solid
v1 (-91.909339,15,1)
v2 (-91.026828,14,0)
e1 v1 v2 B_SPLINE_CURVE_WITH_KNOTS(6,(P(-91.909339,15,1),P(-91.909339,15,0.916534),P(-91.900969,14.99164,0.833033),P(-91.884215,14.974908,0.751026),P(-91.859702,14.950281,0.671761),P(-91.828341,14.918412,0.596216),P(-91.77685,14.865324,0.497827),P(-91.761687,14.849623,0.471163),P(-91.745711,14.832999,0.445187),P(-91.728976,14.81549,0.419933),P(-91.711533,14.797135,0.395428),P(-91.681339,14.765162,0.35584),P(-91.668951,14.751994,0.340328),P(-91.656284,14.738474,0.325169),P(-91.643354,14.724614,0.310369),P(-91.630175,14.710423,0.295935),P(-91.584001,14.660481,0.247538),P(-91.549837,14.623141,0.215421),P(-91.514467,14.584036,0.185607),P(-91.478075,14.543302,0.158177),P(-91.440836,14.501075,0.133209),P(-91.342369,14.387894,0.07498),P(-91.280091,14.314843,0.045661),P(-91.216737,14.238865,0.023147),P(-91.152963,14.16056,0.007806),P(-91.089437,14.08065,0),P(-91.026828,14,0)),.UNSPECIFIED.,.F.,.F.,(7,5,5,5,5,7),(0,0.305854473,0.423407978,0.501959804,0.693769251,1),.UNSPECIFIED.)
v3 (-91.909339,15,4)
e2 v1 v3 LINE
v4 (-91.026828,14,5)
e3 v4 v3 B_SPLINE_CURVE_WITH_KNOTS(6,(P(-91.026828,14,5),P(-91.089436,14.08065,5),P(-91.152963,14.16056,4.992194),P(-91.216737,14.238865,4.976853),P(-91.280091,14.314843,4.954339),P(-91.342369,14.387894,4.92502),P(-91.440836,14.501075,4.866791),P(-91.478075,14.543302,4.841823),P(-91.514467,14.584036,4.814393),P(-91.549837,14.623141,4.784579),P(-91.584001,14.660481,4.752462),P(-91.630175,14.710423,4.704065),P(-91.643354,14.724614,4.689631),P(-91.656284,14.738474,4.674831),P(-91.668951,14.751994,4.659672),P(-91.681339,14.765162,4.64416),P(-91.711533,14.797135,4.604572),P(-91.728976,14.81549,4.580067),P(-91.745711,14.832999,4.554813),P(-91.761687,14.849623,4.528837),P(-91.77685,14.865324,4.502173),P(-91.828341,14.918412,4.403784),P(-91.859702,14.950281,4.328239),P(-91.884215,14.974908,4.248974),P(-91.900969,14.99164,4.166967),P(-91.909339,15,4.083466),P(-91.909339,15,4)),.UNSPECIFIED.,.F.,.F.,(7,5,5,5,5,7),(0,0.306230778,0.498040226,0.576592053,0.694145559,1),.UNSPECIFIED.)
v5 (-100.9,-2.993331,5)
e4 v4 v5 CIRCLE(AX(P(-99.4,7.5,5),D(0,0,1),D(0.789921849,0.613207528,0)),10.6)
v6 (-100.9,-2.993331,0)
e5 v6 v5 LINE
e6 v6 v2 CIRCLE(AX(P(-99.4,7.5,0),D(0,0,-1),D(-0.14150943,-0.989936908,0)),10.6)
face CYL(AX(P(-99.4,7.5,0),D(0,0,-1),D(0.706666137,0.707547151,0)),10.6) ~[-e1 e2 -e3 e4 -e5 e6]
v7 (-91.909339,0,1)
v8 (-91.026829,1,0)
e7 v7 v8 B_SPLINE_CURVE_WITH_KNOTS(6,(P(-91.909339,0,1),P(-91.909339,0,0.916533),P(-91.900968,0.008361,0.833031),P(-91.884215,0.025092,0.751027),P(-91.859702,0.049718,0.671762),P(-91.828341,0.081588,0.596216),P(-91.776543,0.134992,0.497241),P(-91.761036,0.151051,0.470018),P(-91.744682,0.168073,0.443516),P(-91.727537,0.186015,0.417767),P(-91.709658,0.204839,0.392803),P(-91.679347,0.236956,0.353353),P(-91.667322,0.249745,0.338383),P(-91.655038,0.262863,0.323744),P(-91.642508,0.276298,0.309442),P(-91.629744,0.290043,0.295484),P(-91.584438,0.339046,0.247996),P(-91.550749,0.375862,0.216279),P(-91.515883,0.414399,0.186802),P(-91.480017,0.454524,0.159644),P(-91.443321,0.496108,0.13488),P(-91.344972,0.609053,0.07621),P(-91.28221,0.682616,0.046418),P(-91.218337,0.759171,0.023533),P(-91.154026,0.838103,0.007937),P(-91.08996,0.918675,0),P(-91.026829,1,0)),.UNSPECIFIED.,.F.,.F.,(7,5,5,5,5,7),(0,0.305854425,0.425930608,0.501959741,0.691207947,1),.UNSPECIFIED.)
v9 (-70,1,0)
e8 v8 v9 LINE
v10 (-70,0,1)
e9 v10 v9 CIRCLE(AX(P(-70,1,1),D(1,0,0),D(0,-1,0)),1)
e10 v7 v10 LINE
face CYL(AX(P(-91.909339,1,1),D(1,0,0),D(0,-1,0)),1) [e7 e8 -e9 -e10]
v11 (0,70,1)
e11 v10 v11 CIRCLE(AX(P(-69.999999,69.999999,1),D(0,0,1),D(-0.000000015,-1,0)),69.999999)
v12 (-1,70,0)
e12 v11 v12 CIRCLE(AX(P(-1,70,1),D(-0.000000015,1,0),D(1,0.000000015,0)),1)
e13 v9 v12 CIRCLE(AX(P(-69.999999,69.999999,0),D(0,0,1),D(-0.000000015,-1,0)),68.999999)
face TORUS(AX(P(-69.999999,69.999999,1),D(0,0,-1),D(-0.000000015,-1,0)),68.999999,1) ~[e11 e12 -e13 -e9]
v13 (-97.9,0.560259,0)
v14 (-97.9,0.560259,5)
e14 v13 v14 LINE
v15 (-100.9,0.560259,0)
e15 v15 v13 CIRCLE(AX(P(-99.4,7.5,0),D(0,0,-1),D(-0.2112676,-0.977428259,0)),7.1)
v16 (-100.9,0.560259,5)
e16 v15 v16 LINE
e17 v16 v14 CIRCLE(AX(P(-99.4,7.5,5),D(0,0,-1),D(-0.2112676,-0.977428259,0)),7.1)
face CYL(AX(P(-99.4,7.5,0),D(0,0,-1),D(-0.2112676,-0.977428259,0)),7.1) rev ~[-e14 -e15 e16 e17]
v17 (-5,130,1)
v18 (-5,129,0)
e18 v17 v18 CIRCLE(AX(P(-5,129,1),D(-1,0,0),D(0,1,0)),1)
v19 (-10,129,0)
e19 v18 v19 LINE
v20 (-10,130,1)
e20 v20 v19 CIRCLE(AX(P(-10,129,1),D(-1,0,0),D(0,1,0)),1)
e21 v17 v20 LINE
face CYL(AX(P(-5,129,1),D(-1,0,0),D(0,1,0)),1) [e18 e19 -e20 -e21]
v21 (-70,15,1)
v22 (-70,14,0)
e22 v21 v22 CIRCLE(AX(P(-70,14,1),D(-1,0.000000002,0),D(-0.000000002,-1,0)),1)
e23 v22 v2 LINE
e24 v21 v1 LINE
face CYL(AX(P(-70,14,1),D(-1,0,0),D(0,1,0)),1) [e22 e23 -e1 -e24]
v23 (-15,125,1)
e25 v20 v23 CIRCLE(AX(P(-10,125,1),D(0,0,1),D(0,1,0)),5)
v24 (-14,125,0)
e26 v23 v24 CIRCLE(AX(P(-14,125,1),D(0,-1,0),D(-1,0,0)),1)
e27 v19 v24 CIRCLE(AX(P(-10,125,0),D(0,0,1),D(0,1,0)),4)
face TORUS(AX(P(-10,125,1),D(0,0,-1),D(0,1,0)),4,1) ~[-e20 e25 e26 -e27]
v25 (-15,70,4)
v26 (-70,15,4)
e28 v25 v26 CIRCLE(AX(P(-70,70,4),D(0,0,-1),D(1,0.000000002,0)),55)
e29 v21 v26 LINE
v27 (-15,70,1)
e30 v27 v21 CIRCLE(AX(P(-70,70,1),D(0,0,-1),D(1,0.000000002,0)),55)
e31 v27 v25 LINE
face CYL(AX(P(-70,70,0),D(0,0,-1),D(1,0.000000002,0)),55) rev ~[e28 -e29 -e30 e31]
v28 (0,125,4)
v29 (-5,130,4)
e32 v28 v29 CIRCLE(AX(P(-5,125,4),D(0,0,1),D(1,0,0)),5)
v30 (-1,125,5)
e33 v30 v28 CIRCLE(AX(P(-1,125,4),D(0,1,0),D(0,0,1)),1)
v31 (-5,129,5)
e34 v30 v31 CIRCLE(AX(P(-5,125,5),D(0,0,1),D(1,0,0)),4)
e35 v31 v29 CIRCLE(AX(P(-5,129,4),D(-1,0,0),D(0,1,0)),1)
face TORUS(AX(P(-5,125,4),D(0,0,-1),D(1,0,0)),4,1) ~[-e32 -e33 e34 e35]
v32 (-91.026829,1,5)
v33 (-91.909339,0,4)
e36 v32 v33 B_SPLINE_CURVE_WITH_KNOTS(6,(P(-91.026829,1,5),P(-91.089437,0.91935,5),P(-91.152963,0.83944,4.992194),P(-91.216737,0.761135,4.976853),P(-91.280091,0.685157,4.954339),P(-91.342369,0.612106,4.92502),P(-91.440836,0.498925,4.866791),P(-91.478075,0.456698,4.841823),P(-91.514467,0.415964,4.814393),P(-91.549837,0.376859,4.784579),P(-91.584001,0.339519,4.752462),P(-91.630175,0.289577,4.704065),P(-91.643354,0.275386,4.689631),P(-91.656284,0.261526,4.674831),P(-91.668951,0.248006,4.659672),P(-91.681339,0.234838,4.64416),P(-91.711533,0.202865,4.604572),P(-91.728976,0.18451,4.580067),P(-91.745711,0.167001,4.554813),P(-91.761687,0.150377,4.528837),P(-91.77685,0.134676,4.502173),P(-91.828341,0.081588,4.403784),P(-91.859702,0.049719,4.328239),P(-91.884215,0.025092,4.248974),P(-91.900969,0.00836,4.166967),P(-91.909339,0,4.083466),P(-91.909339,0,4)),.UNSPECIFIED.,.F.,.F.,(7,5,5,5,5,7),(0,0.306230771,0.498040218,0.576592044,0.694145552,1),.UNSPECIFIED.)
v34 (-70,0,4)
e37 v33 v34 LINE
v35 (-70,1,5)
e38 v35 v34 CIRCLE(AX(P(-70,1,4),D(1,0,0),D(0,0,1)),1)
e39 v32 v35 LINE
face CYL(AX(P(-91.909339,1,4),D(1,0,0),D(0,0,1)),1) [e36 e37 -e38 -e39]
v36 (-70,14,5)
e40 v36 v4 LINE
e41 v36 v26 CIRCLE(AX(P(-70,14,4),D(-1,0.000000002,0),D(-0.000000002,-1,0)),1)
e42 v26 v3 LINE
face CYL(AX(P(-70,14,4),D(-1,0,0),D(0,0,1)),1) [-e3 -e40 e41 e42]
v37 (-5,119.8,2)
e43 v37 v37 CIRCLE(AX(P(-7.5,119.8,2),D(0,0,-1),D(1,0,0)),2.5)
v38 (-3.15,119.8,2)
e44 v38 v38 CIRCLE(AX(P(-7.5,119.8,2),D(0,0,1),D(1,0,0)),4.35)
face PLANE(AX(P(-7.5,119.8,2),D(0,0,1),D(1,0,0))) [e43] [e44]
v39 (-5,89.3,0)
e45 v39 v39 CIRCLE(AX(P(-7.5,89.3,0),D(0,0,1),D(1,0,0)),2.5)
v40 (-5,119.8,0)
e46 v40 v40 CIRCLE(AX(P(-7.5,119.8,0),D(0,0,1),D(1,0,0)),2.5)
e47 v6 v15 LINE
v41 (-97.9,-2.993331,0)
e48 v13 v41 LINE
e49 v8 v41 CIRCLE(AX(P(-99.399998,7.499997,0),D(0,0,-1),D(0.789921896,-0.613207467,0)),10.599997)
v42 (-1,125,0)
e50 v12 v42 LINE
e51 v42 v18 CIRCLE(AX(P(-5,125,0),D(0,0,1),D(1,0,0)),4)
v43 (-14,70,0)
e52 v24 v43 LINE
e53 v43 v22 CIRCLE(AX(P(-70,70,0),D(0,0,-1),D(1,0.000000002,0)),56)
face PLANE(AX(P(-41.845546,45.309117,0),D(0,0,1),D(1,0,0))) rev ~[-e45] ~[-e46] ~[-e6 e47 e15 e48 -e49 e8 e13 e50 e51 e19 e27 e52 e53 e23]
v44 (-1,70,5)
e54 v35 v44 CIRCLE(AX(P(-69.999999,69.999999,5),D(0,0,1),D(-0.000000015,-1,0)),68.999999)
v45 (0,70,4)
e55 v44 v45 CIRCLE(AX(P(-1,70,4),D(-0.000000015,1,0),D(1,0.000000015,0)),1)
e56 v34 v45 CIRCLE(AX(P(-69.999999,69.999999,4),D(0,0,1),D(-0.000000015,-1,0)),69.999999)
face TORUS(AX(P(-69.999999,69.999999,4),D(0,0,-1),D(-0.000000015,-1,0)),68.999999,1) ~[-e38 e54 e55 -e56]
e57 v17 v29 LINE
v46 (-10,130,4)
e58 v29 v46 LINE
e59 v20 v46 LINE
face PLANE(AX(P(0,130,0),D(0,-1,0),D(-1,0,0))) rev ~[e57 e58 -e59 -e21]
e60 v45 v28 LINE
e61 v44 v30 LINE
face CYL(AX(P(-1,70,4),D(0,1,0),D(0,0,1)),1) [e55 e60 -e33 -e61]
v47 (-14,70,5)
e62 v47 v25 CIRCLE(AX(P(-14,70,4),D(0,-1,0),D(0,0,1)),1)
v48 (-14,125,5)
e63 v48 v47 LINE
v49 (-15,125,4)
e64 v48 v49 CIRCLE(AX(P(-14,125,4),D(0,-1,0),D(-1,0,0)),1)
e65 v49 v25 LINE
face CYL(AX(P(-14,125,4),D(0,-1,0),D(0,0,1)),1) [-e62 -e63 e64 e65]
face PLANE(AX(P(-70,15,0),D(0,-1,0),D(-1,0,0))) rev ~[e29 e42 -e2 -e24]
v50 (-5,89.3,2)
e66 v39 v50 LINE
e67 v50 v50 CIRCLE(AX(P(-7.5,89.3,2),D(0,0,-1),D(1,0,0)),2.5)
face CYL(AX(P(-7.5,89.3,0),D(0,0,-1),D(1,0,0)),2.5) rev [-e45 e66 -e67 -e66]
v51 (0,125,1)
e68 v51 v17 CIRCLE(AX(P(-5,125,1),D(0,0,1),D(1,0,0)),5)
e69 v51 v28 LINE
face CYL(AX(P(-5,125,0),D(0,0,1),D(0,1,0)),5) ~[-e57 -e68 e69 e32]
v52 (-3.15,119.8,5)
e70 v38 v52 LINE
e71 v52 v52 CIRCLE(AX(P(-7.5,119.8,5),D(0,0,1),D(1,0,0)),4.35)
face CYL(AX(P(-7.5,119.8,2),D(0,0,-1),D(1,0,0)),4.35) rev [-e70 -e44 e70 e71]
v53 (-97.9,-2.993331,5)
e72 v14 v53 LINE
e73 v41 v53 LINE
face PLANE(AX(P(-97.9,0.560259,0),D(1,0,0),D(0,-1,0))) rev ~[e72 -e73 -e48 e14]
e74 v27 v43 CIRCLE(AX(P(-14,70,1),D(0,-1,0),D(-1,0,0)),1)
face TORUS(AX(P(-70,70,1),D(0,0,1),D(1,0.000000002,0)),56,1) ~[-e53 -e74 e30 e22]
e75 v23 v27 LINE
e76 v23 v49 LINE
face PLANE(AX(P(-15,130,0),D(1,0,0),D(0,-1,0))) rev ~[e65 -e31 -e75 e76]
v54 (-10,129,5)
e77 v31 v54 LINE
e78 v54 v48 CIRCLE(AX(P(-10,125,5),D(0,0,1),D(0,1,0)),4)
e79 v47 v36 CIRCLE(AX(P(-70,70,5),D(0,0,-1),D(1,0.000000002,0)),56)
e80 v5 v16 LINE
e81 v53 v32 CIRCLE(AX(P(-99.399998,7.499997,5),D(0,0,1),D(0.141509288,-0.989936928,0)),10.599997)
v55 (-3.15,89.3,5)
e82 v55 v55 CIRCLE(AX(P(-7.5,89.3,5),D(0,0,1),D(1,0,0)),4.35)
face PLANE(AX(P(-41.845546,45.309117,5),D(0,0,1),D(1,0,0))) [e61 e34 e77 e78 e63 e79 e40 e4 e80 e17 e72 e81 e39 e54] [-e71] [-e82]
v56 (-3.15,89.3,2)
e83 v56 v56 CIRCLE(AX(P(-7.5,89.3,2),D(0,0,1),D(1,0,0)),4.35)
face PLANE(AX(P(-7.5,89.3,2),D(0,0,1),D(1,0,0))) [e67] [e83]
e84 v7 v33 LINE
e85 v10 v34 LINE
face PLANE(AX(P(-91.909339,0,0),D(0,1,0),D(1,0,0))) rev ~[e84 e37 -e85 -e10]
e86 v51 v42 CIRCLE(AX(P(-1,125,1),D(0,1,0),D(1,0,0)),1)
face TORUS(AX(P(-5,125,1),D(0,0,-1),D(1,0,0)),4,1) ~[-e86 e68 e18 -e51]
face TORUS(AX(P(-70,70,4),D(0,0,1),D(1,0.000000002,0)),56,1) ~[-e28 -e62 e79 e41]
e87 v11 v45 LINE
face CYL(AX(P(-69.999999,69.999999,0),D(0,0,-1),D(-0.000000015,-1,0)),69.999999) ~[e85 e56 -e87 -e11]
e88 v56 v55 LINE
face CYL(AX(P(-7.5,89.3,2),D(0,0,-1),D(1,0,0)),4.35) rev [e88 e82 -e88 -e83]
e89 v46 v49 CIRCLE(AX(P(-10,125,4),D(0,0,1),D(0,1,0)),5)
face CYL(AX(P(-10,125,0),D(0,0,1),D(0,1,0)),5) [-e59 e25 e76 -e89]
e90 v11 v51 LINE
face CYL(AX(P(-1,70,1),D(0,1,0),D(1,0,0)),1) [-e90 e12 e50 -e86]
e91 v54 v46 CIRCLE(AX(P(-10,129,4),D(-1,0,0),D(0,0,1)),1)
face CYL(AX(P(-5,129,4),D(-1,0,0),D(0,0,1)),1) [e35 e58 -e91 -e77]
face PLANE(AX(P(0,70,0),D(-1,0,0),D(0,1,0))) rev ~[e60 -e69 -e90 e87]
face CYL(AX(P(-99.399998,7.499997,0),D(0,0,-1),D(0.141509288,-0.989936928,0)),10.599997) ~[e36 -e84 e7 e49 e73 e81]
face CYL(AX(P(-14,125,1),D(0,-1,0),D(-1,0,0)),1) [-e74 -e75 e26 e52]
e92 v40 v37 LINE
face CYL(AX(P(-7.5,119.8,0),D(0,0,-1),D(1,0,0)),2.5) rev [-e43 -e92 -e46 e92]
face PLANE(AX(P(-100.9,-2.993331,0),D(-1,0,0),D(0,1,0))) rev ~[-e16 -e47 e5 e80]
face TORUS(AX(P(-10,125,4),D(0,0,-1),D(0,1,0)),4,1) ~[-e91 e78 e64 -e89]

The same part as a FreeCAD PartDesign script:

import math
import FreeCAD as App
import Part
import Sketcher
Q = App.Units.Quantity


def edges_at(feature, points):
    """Names of the edges that pass closest to the given points."""
    edges = feature.Shape.Edges
    near = lambda p: min(range(len(edges)), key=lambda i: edges[i].distToShape(Part.Vertex(*p))[0])
    return sorted({f"Edge{near(p) + 1}" for p in points})

doc = App.newDocument("Part")
body = doc.addObject("PartDesign::Body", "Body")

sketch1 = body.newObject("Sketcher::SketchObject", "Sketch")
sketch1.AttachmentSupport = (doc.getObject("XY_Plane"), [""])
sketch1.MapMode = "FlatFace"
sketch1.addGeometry(Part.LineSegment(App.Vector(0, 130, 0), App.Vector(-15, 130, 0)), False)
sketch1.addGeometry(Part.LineSegment(App.Vector(-15, 130, 0), App.Vector(-15, 70, 0)), False)
sketch1.addGeometry(Part.ArcOfCircle(Part.Circle(App.Vector(-70, 70, 0), App.Vector(0, 0, 1), 55), math.radians(-90), math.radians(0)), False)
sketch1.addGeometry(Part.LineSegment(App.Vector(-70, 15, 0), App.Vector(-91.9, 15, 0)), False)
sketch1.addGeometry(Part.ArcOfCircle(Part.Circle(App.Vector(-99.4, 7.5, 0), App.Vector(0, 0, 1), 10.6), math.radians(45), math.radians(262)), False)
sketch1.addGeometry(Part.LineSegment(App.Vector(-100.9, -3, 0), App.Vector(-100.9, 0.6, 0)), False)
sketch1.addGeometry(Part.ArcOfCircle(Part.Circle(App.Vector(-99.4, 7.5, 0), App.Vector(0, 0, 1), 7.1), math.radians(-78), math.radians(258)), False)
sketch1.addGeometry(Part.LineSegment(App.Vector(-97.9, 0.6, 0), App.Vector(-97.9, -3, 0)), False)
sketch1.addGeometry(Part.ArcOfCircle(Part.Circle(App.Vector(-99.4, 7.5, 0), App.Vector(0, 0, 1), 10.6), math.radians(-82), math.radians(-45)), False)
sketch1.addGeometry(Part.LineSegment(App.Vector(-91.9, 0, 0), App.Vector(-70, 0, 0)), False)
sketch1.addGeometry(Part.ArcOfCircle(Part.Circle(App.Vector(-70, 70, 0), App.Vector(0, 0, 1), 70), math.radians(-90), math.radians(0)), False)
sketch1.addGeometry(Part.LineSegment(App.Vector(0, 70, 0), App.Vector(0, 130, 0)), False)
sketch1.addGeometry(Part.Circle(App.Vector(-7.5, 89.3, 0), App.Vector(0, 0, 1), 2.5), False)
sketch1.addGeometry(Part.Circle(App.Vector(-7.5, 119.8, 0), App.Vector(0, 0, 1), 2.5), False)
sketch1.addConstraint(Sketcher.Constraint("Coincident", 0, 2, 1, 1))
sketch1.addConstraint(Sketcher.Constraint("Tangent", 1, 2, 2, 2))
sketch1.addConstraint(Sketcher.Constraint("Tangent", 2, 1, 3, 1))
sketch1.addConstraint(Sketcher.Constraint("Coincident", 3, 2, 4, 1))
sketch1.addConstraint(Sketcher.Constraint("Coincident", 4, 2, 5, 1))
sketch1.addConstraint(Sketcher.Constraint("Coincident", 5, 2, 6, 2))
sketch1.addConstraint(Sketcher.Constraint("Coincident", 6, 1, 7, 1))
sketch1.addConstraint(Sketcher.Constraint("Coincident", 7, 2, 8, 1))
sketch1.addConstraint(Sketcher.Constraint("Coincident", 8, 2, 9, 1))
sketch1.addConstraint(Sketcher.Constraint("Tangent", 9, 2, 10, 1))
sketch1.addConstraint(Sketcher.Constraint("Tangent", 10, 2, 11, 1))
sketch1.addConstraint(Sketcher.Constraint("Coincident", 11, 2, 0, 1))
sketch1.addConstraint(Sketcher.Constraint("Horizontal", 0))
sketch1.addConstraint(Sketcher.Constraint("Vertical", 1))
sketch1.addConstraint(Sketcher.Constraint("Horizontal", 3))
sketch1.addConstraint(Sketcher.Constraint("Vertical", 5))
sketch1.addConstraint(Sketcher.Constraint("Vertical", 7))
sketch1.addConstraint(Sketcher.Constraint("Horizontal", 9))
sketch1.addConstraint(Sketcher.Constraint("Vertical", 11))
sketch1.addConstraint(Sketcher.Constraint("Coincident", 6, 3, 4, 3))
sketch1.addConstraint(Sketcher.Constraint("Coincident", 8, 3, 4, 3))
sketch1.addConstraint(Sketcher.Constraint("Coincident", 10, 3, 2, 3))
sketch1.addConstraint(Sketcher.Constraint("Equal", 12, 13))
sketch1.addConstraint(Sketcher.Constraint("PointOnObject", 8, 2, -1))
sketch1.addConstraint(Sketcher.Constraint("PointOnObject", 10, 2, -2))
sketch1.addConstraint(Sketcher.Constraint("Horizontal", 5, 2, 6, 1))
sketch1.addConstraint(Sketcher.Constraint("Horizontal", 4, 2, 7, 2))
sketch1.addConstraint(Sketcher.Constraint("Vertical", 12, 3, 13, 3))
sketch1.addConstraint(Sketcher.Constraint("Vertical", 3, 2, 8, 2))
sketch1.addConstraint(Sketcher.Constraint("Diameter", 12, Q("5 mm")))
sketch1.addConstraint(Sketcher.Constraint("Radius", 2, Q("55 mm")))
sketch1.addConstraint(Sketcher.Constraint("Radius", 10, Q("69.999999 mm")))
sketch1.addConstraint(Sketcher.Constraint("Radius", 4, Q("10.6 mm")))
sketch1.addConstraint(Sketcher.Constraint("Radius", 6, Q("7.1 mm")))
sketch1.addConstraint(Sketcher.Constraint("DistanceY", 1, 2, 1, 1, Q("60 mm")))
sketch1.addConstraint(Sketcher.Constraint("DistanceX", 5, 2, 6, 1, Q("3 mm")))
sketch1.addConstraint(Sketcher.Constraint("DistanceX", 4, 3, -1, 1, Q("99.4 mm")))
sketch1.addConstraint(Sketcher.Constraint("DistanceX", 12, 3, -1, 1, Q("7.5 mm")))
sketch1.addConstraint(Sketcher.Constraint("DistanceY", -1, 1, 12, 3, Q("89.3 mm")))
sketch1.addConstraint(Sketcher.Constraint("DistanceY", -1, 1, 13, 3, Q("119.8 mm")))
pad1 = body.newObject("PartDesign::Pad", "Pad")
pad1.Profile = sketch1
pad1.Length = 5

sketch2 = body.newObject("Sketcher::SketchObject", "Sketch001")
sketch2.AttachmentSupport = (doc.getObject("XY_Plane"), [""])
sketch2.MapMode = "FlatFace"
sketch2.AttachmentOffset = App.Placement(App.Vector(0, 0, 2), App.Rotation())
sketch2.addGeometry(Part.Circle(App.Vector(-7.5, 89.3, 0), App.Vector(0, 0, 1), 4.3), False)
sketch2.addGeometry(Part.Circle(App.Vector(-7.5, 119.8, 0), App.Vector(0, 0, 1), 4.3), False)
sketch2.addConstraint(Sketcher.Constraint("Equal", 0, 1))
sketch2.addConstraint(Sketcher.Constraint("Vertical", 0, 3, 1, 3))
sketch2.addConstraint(Sketcher.Constraint("Diameter", 0, Q("8.7 mm")))
sketch2.addConstraint(Sketcher.Constraint("DistanceX", 0, 3, -1, 1, Q("7.5 mm")))
sketch2.addConstraint(Sketcher.Constraint("DistanceY", -1, 1, 0, 3, Q("89.3 mm")))
sketch2.addConstraint(Sketcher.Constraint("DistanceY", -1, 1, 1, 3, Q("119.8 mm")))
pocket1 = body.newObject("PartDesign::Pocket", "Pocket")
pocket1.Profile = sketch2
pocket1.Type = "ThroughAll"
pocket1.Reversed = True
doc.recompute()

fillet = body.newObject("PartDesign::Fillet", "Fillet")
fillet.Base = (pocket1, edges_at(pocket1, [(0, 130, 2.5)]))
fillet.Radius = 5
doc.recompute()

fillet2 = body.newObject("PartDesign::Fillet", "Fillet001")
fillet2.Base = (fillet, edges_at(fillet, [(-15, 130, 2.5)]))
fillet2.Radius = 5
doc.recompute()

fillet3 = body.newObject("PartDesign::Fillet", "Fillet002")
fillet3.Base = (fillet2, edges_at(fillet2, [(0, 97.5, 5)]))
fillet3.Radius = 1
doc.recompute()

fillet4 = body.newObject("PartDesign::Fillet", "Fillet003")
fillet4.Base = (fillet3, edges_at(fillet3, [(0, 97.5, 0)]))
fillet4.Radius = 1

doc.recompute()
